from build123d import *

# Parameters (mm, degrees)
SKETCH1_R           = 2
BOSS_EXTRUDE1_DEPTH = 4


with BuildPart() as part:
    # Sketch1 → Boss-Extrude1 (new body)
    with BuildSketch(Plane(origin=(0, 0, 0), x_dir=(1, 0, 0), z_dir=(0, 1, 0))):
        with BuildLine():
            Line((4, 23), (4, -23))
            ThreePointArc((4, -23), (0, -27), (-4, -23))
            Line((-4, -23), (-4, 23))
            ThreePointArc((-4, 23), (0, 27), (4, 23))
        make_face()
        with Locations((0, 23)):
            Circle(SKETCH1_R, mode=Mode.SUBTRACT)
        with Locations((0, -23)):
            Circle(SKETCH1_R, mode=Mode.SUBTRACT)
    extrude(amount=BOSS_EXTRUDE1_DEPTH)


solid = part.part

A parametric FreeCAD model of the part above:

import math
import FreeCAD as App
import Part
import Sketcher
from FreeCAD import Vector

doc = App.newDocument("Part")
body = doc.addObject("PartDesign::Body", "Body")

sketch1 = doc.addObject("Sketcher::SketchObject", "Sketch")
body.addObject(sketch1)
sketch1.AttachmentSupport = (doc.XZ_Plane, [""])
sketch1.MapMode = "FlatFace"
sketch1.addGeometry([
    Part.LineSegment(Vector(4, 23, 0), Vector(4, -23, 0)),
    Part.ArcOfCircle(Part.Circle(Vector(0, -23, 0), Vector(0, 0, 1), 4), math.radians(180), math.radians(360)),
    Part.LineSegment(Vector(-4, -23, 0), Vector(-4, 23, 0)),
    Part.ArcOfCircle(Part.Circle(Vector(0, 23, 0), Vector(0, 0, 1), 4), math.radians(0), math.radians(180)),
    Part.Circle(Vector(0, 23, 0), Vector(0, 0, 1), 2),
    Part.Circle(Vector(0, -23, 0), Vector(0, 0, 1), 2),
], False)
sketch1.addConstraint([
    Sketcher.Constraint("Tangent", 0, 2, 1, 2),
    Sketcher.Constraint("Tangent", 1, 1, 2, 1),
    Sketcher.Constraint("Tangent", 2, 2, 3, 2),
    Sketcher.Constraint("Tangent", 3, 1, 0, 1),
    Sketcher.Constraint("Vertical", 0),
    Sketcher.Constraint("Vertical", 2),
    Sketcher.Constraint("Coincident", 4, 3, 3, 3),
    Sketcher.Constraint("Coincident", 5, 3, 1, 3),
    Sketcher.Constraint("Equal", 4, 5),
    Sketcher.Constraint("Symmetric", 1, 3, 3, 3, -1, 1),
    Sketcher.Constraint("Diameter", 4, 4.0),
    Sketcher.Constraint("Radius", 1, 4.0),
    Sketcher.Constraint("DistanceY", 0, 2, 0, 1, 46.0),
])
pad1 = doc.addObject("PartDesign::Pad", "Pad")
body.addObject(pad1)
pad1.Profile = sketch1
pad1.Length = 4
pad1.Reversed = True

doc.recompute()
